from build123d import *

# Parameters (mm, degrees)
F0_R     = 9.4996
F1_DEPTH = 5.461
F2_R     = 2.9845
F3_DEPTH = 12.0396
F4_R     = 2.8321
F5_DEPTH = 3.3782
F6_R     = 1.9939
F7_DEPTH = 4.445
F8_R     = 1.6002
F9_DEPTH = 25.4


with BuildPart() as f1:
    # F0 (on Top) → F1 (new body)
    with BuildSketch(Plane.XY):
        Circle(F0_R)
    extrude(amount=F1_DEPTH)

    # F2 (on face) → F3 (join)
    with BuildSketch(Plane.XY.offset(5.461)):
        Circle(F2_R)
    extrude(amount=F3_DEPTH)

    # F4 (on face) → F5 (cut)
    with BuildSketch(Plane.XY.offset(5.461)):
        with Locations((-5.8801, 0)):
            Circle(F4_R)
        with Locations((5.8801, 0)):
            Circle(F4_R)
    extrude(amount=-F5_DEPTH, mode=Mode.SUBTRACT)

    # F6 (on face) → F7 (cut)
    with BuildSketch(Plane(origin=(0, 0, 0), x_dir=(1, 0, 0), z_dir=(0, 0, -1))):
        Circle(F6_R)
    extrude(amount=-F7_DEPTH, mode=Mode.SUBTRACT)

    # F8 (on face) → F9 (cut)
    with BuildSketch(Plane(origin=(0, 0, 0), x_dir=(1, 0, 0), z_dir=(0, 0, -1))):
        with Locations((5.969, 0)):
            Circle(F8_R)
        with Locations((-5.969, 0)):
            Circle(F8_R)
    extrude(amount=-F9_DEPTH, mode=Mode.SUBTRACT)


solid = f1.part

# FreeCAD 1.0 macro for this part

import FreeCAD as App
import Part
import Sketcher
from FreeCAD import Vector
Q = App.Units.Quantity

doc = App.newDocument("Part")
body = doc.addObject("PartDesign::Body", "Body")

sketch1 = doc.addObject("Sketcher::SketchObject", "Sketch")
body.addObject(sketch1)
sketch1.AttachmentSupport = (doc.XY_Plane, [""])
sketch1.MapMode = "FlatFace"
sketch1.addGeometry(Part.Circle(Vector(0, 0, 0), Vector(0, 0, 1), 9), False)
sketch1.addConstraint(Sketcher.Constraint("Coincident", 0, 3, -1, 1))
sketch1.addConstraint(Sketcher.Constraint("Diameter", 0, Q("0.748 in")))
pad1 = doc.addObject("PartDesign::Pad", "Pad")
body.addObject(pad1)
pad1.Profile = sketch1
pad1.Length = Q("0.215 in")

sketch2 = doc.addObject("Sketcher::SketchObject", "Sketch001")
body.addObject(sketch2)
sketch2.AttachmentSupport = (doc.XY_Plane, [""])
sketch2.MapMode = "FlatFace"
sketch2.AttachmentOffset = App.Placement(Vector(0, 0, 0.215 * 25.4), App.Rotation())
sketch2.addGeometry(Part.Circle(Vector(0, 0, 0), Vector(0, 0, 1), 3), False)
sketch2.addConstraint(Sketcher.Constraint("Coincident", 0, 3, -1, 1))
sketch2.addConstraint(Sketcher.Constraint("Diameter", 0, Q("0.235 in")))
pad2 = doc.addObject("PartDesign::Pad", "Pad001")
body.addObject(pad2)
pad2.Profile = sketch2
pad2.Length = Q("0.474 in")

sketch3 = doc.addObject("Sketcher::SketchObject", "Sketch002")
body.addObject(sketch3)
sketch3.AttachmentSupport = (doc.XY_Plane, [""])
sketch3.MapMode = "FlatFace"
sketch3.AttachmentOffset = App.Placement(Vector(0, 0, 0.215 * 25.4), App.Rotation())
sketch3.addGeometry(Part.Circle(Vector(-5.9, 0, 0), Vector(0, 0, 1), 2.8), False)
sketch3.addGeometry(Part.Circle(Vector(5.9, 0, 0), Vector(0, 0, 1), 2.8), False)
sketch3.addConstraint(Sketcher.Constraint("Equal", 0, 1))
sketch3.addConstraint(Sketcher.Constraint("Symmetric", 0, 3, 1, 3, -1, 1))
sketch3.addConstraint(Sketcher.Constraint("PointOnObject", 0, 3, -1))
sketch3.addConstraint(Sketcher.Constraint("Diameter", 0, Q("0.223 in")))
sketch3.addConstraint(Sketcher.Constraint("DistanceX", 0, 3, 1, 3, Q("0.463 in")))
pocket1 = doc.addObject("PartDesign::Pocket", "Pocket")
body.addObject(pocket1)
pocket1.Profile = sketch3
pocket1.Length = Q("0.133 in")

sketch4 = doc.addObject("Sketcher::SketchObject", "Sketch003")
body.addObject(sketch4)
sketch4.AttachmentSupport = (doc.XY_Plane, [""])
sketch4.MapMode = "FlatFace"
sketch4.addGeometry(Part.Circle(Vector(0, 0, 0), Vector(0, 0, 1), 2), False)
sketch4.addConstraint(Sketcher.Constraint("Coincident", 0, 3, -1, 1))
sketch4.addConstraint(Sketcher.Constraint("Diameter", 0, Q("0.157 in")))
pocket2 = doc.addObject("PartDesign::Pocket", "Pocket001")
body.addObject(pocket2)
pocket2.Profile = sketch4
pocket2.Length = Q("0.175 in")
pocket2.Reversed = True

sketch5 = doc.addObject("Sketcher::SketchObject", "Sketch004")
body.addObject(sketch5)
sketch5.AttachmentSupport = (doc.XY_Plane, [""])
sketch5.MapMode = "FlatFace"
sketch5.addGeometry(Part.Circle(Vector(6, 0, 0), Vector(0, 0, 1), 1.6), False)
sketch5.addGeometry(Part.Circle(Vector(-6, 0, 0), Vector(0, 0, 1), 1.6), False)
sketch5.addConstraint(Sketcher.Constraint("Equal", 0, 1))
sketch5.addConstraint(Sketcher.Constraint("Symmetric", 0, 3, 1, 3, -1, 1))
sketch5.addConstraint(Sketcher.Constraint("PointOnObject", 0, 3, -1))
sketch5.addConstraint(Sketcher.Constraint("Diameter", 0, Q("0.126 in")))
sketch5.addConstraint(Sketcher.Constraint("DistanceX", 1, 3, 0, 3, Q("0.47 in")))
pocket3 = doc.addObject("PartDesign::Pocket", "Pocket002")
body.addObject(pocket3)
pocket3.Profile = sketch5
pocket3.Length = Q("1 in")
pocket3.Reversed = True

doc.recompute()
